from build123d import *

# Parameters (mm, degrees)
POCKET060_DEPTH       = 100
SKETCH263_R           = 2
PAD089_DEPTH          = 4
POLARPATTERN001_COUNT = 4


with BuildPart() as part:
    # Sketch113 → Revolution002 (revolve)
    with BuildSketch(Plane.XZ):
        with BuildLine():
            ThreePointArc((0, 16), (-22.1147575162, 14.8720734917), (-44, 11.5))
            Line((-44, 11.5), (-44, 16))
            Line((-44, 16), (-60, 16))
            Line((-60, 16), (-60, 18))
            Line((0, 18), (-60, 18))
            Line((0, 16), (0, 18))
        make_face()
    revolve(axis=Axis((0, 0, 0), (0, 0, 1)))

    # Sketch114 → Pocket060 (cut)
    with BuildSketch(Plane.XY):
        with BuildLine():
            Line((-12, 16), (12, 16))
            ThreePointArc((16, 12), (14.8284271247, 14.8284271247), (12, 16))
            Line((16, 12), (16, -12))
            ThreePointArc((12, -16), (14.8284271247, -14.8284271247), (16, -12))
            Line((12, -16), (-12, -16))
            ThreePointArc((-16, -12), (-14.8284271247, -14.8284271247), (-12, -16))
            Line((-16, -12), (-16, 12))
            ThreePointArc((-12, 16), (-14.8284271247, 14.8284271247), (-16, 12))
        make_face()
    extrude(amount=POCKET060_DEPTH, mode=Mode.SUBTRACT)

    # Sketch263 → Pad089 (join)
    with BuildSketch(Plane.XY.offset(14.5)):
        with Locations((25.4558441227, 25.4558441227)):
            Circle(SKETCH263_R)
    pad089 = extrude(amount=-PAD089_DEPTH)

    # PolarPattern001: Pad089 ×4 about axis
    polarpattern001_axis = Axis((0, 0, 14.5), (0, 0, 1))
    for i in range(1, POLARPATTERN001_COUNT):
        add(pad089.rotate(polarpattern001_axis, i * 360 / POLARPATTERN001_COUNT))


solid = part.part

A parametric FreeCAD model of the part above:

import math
import FreeCAD as App
import Part
import Sketcher
from FreeCAD import Vector

doc = App.newDocument("Part")
body = doc.addObject("PartDesign::Body", "Body")

# Sketch on XZ plane
sketch1 = body.newObject("Sketcher::SketchObject", "Sketch")
sketch1.AttachmentSupport = (doc.getObject("XZ_Plane"), [""])
sketch1.MapMode = "FlatFace"
sketch1.addGeometry([
    Part.ArcOfCircle(Part.Circle(Vector(0, -201.4, 0), Vector(0, 0, 1), 217.4), math.radians(90), math.radians(101.68)),  # 0
    Part.LineSegment(Vector(0, 16, 0), Vector(0, 18, 0)),  # 1
    Part.LineSegment(Vector(0, 18, 0), Vector(-60, 18, 0)),  # 2
    Part.LineSegment(Vector(-60, 18, 0), Vector(-60, 16, 0)),  # 3
    Part.LineSegment(Vector(-60, 16, 0), Vector(-44, 16, 0)),  # 4
    Part.LineSegment(Vector(-44, 16, 0), Vector(-44, 11.5, 0)),  # 5
], False)
sketch1.addConstraint([
    Sketcher.Constraint("Coincident", 0, 1, 1, 1),
    Sketcher.Constraint("Coincident", 1, 2, 2, 1),
    Sketcher.Constraint("Coincident", 2, 2, 3, 1),
    Sketcher.Constraint("Coincident", 3, 2, 4, 1),
    Sketcher.Constraint("Coincident", 4, 2, 5, 1),
    Sketcher.Constraint("Coincident", 5, 2, 0, 2),
    Sketcher.Constraint("Vertical", 1),
    Sketcher.Constraint("Horizontal", 2),
    Sketcher.Constraint("Vertical", 3),
    Sketcher.Constraint("Horizontal", 4),
    Sketcher.Constraint("Vertical", 5),
    Sketcher.Constraint("PointOnObject", 0, 3, -2),
    Sketcher.Constraint("PointOnObject", 0, 1, -2),
    Sketcher.Constraint("Horizontal", 0, 1, 3, 2),
    Sketcher.Constraint("DistanceX", 2, 2, 2, 1, 60.0),
    Sketcher.Constraint("DistanceX", 4, 1, 4, 2, 16.0),
    Sketcher.Constraint("DistanceY", 1, 1, 1, 2, 2.0),
    Sketcher.Constraint("DistanceY", 5, 2, 5, 1, 4.5),
    Sketcher.Constraint("DistanceY", -1, 1, 0, 1, 16.0),
])
revolution = body.newObject("PartDesign::Revolution", "Revolution")
revolution.Profile = sketch1
revolution.ReferenceAxis = (sketch1, ["V_Axis"])
revolution.Angle = 360

# Sketch on XY plane
sketch2 = body.newObject("Sketcher::SketchObject", "Sketch001")
sketch2.AttachmentSupport = (doc.getObject("XY_Plane"), [""])
sketch2.MapMode = "FlatFace"
sketch2.addGeometry([
    Part.LineSegment(Vector(12, 16, 0), Vector(-12, 16, 0)),  # 0
    Part.ArcOfCircle(Part.Circle(Vector(-12, 12, 0), Vector(0, 0, 1), 4), math.radians(90), math.radians(180)),  # 1
    Part.LineSegment(Vector(-16, 12, 0), Vector(-16, -12, 0)),  # 2
    Part.ArcOfCircle(Part.Circle(Vector(-12, -12, 0), Vector(0, 0, 1), 4), math.radians(180), math.radians(270)),  # 3
    Part.LineSegment(Vector(-12, -16, 0), Vector(12, -16, 0)),  # 4
    Part.ArcOfCircle(Part.Circle(Vector(12, -12, 0), Vector(0, 0, 1), 4), math.radians(-90), math.radians(0)),  # 5
    Part.LineSegment(Vector(16, -12, 0), Vector(16, 12, 0)),  # 6
    Part.ArcOfCircle(Part.Circle(Vector(12, 12, 0), Vector(0, 0, 1), 4), math.radians(0), math.radians(90)),  # 7
], False)
sketch2.addConstraint([
    Sketcher.Constraint("Tangent", 0, 2, 1, 1),
    Sketcher.Constraint("Tangent", 1, 2, 2, 1),
    Sketcher.Constraint("Tangent", 2, 2, 3, 1),
    Sketcher.Constraint("Tangent", 3, 2, 4, 1),
    Sketcher.Constraint("Tangent", 4, 2, 5, 1),
    Sketcher.Constraint("Tangent", 5, 2, 6, 1),
    Sketcher.Constraint("Tangent", 6, 2, 7, 1),
    Sketcher.Constraint("Tangent", 7, 2, 0, 1),
    Sketcher.Constraint("Horizontal", 0),
    Sketcher.Constraint("Vertical", 2),
    Sketcher.Constraint("Horizontal", 4),
    Sketcher.Constraint("Vertical", 6),
    Sketcher.Constraint("Equal", 1, 3),
    Sketcher.Constraint("Equal", 3, 5),
    Sketcher.Constraint("Equal", 5, 7),
    Sketcher.Constraint("Symmetric", 1, 3, 5, 3, -1, 1),
    Sketcher.Constraint("Equal", 4, 2),
    Sketcher.Constraint("Radius", 1, 4.0),
    Sketcher.Constraint("DistanceX", 0, 2, 0, 1, 24.0),
])
pocket1 = body.newObject("PartDesign::Pocket", "Pocket")
pocket1.Profile = sketch2
pocket1.Length = 100
pocket1.Reversed = True

# Sketch on XY plane
sketch3 = body.newObject("Sketcher::SketchObject", "Sketch002")
sketch3.AttachmentSupport = (doc.getObject("XY_Plane"), [""])
sketch3.MapMode = "FlatFace"
sketch3.AttachmentOffset = App.Placement(Vector(0, 0, 14.5), App.Rotation())
sketch3.addGeometry(Part.Circle(Vector(25.5, 25.5, 0), Vector(0, 0, 1), 2), False)
sketch3.addConstraint([
    Sketcher.Constraint("Diameter", 0, 4.0),
    Sketcher.Constraint("DistanceX", -1, 1, 0, 3, 25.455844),
    Sketcher.Constraint("DistanceY", -1, 1, 0, 3, 25.455844),
])
pad1 = body.newObject("PartDesign::Pad", "Pad")
pad1.Profile = sketch3
pad1.Length = 4
pad1.Reversed = True
doc.recompute()

polarpattern = body.newObject("PartDesign::PolarPattern", "PolarPattern")
polarpattern.Originals = [pad1]
polarpattern.Axis = (doc.getObject("Z_Axis"), [""])
polarpattern.Angle = 360
polarpattern.Occurrences = 4
body.Tip = polarpattern

doc.recompute()
